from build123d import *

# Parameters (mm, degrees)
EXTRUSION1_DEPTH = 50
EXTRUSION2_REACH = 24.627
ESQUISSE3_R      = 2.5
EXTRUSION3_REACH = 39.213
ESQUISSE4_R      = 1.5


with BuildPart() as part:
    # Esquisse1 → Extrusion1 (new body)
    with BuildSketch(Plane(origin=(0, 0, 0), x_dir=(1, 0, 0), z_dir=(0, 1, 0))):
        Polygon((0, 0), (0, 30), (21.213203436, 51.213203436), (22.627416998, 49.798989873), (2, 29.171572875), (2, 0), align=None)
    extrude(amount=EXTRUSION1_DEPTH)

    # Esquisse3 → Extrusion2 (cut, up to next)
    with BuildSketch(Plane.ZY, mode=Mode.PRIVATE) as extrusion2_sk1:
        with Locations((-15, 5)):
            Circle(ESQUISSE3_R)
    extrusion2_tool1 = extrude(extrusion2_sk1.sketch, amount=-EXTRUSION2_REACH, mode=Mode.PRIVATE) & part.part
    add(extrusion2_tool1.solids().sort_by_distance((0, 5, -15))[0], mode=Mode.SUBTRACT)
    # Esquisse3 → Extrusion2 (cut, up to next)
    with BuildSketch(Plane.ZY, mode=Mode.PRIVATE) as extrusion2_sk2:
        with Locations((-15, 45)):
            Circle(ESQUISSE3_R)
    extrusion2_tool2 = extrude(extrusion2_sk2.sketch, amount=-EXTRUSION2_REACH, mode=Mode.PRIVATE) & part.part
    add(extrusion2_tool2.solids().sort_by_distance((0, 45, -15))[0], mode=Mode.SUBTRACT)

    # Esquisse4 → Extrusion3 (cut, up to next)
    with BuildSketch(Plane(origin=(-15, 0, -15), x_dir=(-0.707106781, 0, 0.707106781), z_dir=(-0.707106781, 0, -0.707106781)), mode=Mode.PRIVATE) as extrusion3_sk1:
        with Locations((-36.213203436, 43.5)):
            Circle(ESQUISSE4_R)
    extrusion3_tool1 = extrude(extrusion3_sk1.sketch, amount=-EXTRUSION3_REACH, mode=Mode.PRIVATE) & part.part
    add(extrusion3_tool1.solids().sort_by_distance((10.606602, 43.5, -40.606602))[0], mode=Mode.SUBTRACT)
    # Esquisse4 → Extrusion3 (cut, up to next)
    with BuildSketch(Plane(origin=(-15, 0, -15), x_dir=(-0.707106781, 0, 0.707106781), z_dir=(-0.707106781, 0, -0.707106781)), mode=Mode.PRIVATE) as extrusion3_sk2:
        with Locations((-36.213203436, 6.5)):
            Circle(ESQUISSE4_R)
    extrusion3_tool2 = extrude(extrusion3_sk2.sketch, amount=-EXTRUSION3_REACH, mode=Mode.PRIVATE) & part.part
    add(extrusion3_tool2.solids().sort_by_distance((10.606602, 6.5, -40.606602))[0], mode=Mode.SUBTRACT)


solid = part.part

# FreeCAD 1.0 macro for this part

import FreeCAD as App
import Part
import Sketcher
Q = App.Units.Quantity


def add_polygon(sketch, points):
    """Adds a closed chain of lines whose ends are joined by coincident constraints."""
    first, n = sketch.GeometryCount, len(points)
    for a, b in zip(points, points[1:] + points[:1]):
        sketch.addGeometry(Part.LineSegment(App.Vector(*a, 0), App.Vector(*b, 0)), False)
    for i in range(n):
        sketch.addConstraint(Sketcher.Constraint("Coincident", first + i, 2, first + (i + 1) % n, 1))

doc = App.newDocument("Part")
body = doc.addObject("PartDesign::Body", "Body")

# Sketch on XZ plane
sketch1 = body.newObject("Sketcher::SketchObject", "Sketch")
sketch1.AttachmentSupport = (doc.getObject("XZ_Plane"), [""])
sketch1.MapMode = "FlatFace"
add_polygon(sketch1, [(0, -30), (0, 0), (2, 0), (2, -29.2), (22.6, -49.8), (21.2, -51.2)])  # lines 0-5
sketch1.addConstraint(Sketcher.Constraint("Vertical", 0))
sketch1.addConstraint(Sketcher.Constraint("Horizontal", 1))
sketch1.addConstraint(Sketcher.Constraint("Vertical", 2))
sketch1.addConstraint(Sketcher.Constraint("Coincident", 0, 2, -1, 1))
sketch1.addConstraint(Sketcher.Constraint("Perpendicular", 3, 4))
sketch1.addConstraint(Sketcher.Constraint("Perpendicular", 4, 5))
sketch1.addConstraint(Sketcher.Constraint("DistanceX", 1, 1, 1, 2, 2.0))
sketch1.addConstraint(Sketcher.Constraint("DistanceY", 0, 1, 0, 2, 30.0))
sketch1.addConstraint(Sketcher.Constraint("Angle", 3, Q("-45 deg")))
sketch1.addConstraint(Sketcher.Constraint("Distance", 4, 2.0))
sketch1.addConstraint(Sketcher.Constraint("Distance", 5, 30.0))
pad1 = body.newObject("PartDesign::Pad", "Pad")
pad1.Profile = sketch1
pad1.Length = 50
pad1.Reversed = True

# Sketch on YZ plane
sketch2 = body.newObject("Sketcher::SketchObject", "Sketch001")
sketch2.AttachmentSupport = (doc.getObject("YZ_Plane"), [""])
sketch2.MapMode = "FlatFace"
sketch2.addGeometry(Part.Circle(App.Vector(5, -15, 0), App.Vector(0, 0, 1), 2.5), False)
sketch2.addConstraint(Sketcher.Constraint("Diameter", 0, 5.0))
sketch2.addConstraint(Sketcher.Constraint("DistanceX", -1, 1, 0, 3, 5.0))
sketch2.addConstraint(Sketcher.Constraint("DistanceY", 0, 3, -1, 1, 15.0))
pocket1 = body.newObject("PartDesign::Pocket", "Pocket")
pocket1.Profile = sketch2
pocket1.Type = "UpToFirst"
pocket1.Reversed = True

# Sketch on YZ plane
sketch3 = body.newObject("Sketcher::SketchObject", "Sketch002")
sketch3.AttachmentSupport = (doc.getObject("YZ_Plane"), [""])
sketch3.MapMode = "FlatFace"
sketch3.addGeometry(Part.Circle(App.Vector(45, -15, 0), App.Vector(0, 0, 1), 2.5), False)
sketch3.addConstraint(Sketcher.Constraint("Diameter", 0, 5.0))
sketch3.addConstraint(Sketcher.Constraint("DistanceX", -1, 1, 0, 3, 45.0))
sketch3.addConstraint(Sketcher.Constraint("DistanceY", 0, 3, -1, 1, 15.0))
pocket2 = body.newObject("PartDesign::Pocket", "Pocket001")
pocket2.Profile = sketch3
pocket2.Type = "UpToFirst"
pocket2.Reversed = True

# Sketch on an angled plane
sketch4 = body.newObject("Sketcher::SketchObject", "Sketch003")
sketch4.Placement = App.Placement(App.Vector(-15, 0, -15), App.Rotation(App.Vector(-0.707106781, 0, 0.707106781), App.Vector(0, 0.999999999, 0), App.Vector(-0.707106781, 0, -0.707106781), "ZXY"))
sketch4.addGeometry(Part.Circle(App.Vector(-36.2, 43.5, 0), App.Vector(0, 0, 1), 1.5), False)
sketch4.addConstraint(Sketcher.Constraint("Diameter", 0, 3.0))
sketch4.addConstraint(Sketcher.Constraint("DistanceY", -1, 1, 0, 3, 43.5))
sketch4.addConstraint(Sketcher.Constraint("DistanceX", 0, 3, -1, 1, 36.213203))
pocket3 = body.newObject("PartDesign::Pocket", "Pocket002")
pocket3.Profile = sketch4
pocket3.Type = "UpToFirst"

# Sketch on an angled plane
sketch5 = body.newObject("Sketcher::SketchObject", "Sketch004")
sketch5.Placement = App.Placement(App.Vector(-15, 0, -15), App.Rotation(App.Vector(-0.707106781, 0, 0.707106781), App.Vector(0, 0.999999999, 0), App.Vector(-0.707106781, 0, -0.707106781), "ZXY"))
sketch5.addGeometry(Part.Circle(App.Vector(-36.2, 6.5, 0), App.Vector(0, 0, 1), 1.5), False)
sketch5.addConstraint(Sketcher.Constraint("Diameter", 0, 3.0))
sketch5.addConstraint(Sketcher.Constraint("DistanceY", -1, 1, 0, 3, 6.5))
sketch5.addConstraint(Sketcher.Constraint("DistanceX", 0, 3, -1, 1, 36.213203))
pocket4 = body.newObject("PartDesign::Pocket", "Pocket003")
pocket4.Profile = sketch5
pocket4.Type = "UpToFirst"

doc.recompute()
